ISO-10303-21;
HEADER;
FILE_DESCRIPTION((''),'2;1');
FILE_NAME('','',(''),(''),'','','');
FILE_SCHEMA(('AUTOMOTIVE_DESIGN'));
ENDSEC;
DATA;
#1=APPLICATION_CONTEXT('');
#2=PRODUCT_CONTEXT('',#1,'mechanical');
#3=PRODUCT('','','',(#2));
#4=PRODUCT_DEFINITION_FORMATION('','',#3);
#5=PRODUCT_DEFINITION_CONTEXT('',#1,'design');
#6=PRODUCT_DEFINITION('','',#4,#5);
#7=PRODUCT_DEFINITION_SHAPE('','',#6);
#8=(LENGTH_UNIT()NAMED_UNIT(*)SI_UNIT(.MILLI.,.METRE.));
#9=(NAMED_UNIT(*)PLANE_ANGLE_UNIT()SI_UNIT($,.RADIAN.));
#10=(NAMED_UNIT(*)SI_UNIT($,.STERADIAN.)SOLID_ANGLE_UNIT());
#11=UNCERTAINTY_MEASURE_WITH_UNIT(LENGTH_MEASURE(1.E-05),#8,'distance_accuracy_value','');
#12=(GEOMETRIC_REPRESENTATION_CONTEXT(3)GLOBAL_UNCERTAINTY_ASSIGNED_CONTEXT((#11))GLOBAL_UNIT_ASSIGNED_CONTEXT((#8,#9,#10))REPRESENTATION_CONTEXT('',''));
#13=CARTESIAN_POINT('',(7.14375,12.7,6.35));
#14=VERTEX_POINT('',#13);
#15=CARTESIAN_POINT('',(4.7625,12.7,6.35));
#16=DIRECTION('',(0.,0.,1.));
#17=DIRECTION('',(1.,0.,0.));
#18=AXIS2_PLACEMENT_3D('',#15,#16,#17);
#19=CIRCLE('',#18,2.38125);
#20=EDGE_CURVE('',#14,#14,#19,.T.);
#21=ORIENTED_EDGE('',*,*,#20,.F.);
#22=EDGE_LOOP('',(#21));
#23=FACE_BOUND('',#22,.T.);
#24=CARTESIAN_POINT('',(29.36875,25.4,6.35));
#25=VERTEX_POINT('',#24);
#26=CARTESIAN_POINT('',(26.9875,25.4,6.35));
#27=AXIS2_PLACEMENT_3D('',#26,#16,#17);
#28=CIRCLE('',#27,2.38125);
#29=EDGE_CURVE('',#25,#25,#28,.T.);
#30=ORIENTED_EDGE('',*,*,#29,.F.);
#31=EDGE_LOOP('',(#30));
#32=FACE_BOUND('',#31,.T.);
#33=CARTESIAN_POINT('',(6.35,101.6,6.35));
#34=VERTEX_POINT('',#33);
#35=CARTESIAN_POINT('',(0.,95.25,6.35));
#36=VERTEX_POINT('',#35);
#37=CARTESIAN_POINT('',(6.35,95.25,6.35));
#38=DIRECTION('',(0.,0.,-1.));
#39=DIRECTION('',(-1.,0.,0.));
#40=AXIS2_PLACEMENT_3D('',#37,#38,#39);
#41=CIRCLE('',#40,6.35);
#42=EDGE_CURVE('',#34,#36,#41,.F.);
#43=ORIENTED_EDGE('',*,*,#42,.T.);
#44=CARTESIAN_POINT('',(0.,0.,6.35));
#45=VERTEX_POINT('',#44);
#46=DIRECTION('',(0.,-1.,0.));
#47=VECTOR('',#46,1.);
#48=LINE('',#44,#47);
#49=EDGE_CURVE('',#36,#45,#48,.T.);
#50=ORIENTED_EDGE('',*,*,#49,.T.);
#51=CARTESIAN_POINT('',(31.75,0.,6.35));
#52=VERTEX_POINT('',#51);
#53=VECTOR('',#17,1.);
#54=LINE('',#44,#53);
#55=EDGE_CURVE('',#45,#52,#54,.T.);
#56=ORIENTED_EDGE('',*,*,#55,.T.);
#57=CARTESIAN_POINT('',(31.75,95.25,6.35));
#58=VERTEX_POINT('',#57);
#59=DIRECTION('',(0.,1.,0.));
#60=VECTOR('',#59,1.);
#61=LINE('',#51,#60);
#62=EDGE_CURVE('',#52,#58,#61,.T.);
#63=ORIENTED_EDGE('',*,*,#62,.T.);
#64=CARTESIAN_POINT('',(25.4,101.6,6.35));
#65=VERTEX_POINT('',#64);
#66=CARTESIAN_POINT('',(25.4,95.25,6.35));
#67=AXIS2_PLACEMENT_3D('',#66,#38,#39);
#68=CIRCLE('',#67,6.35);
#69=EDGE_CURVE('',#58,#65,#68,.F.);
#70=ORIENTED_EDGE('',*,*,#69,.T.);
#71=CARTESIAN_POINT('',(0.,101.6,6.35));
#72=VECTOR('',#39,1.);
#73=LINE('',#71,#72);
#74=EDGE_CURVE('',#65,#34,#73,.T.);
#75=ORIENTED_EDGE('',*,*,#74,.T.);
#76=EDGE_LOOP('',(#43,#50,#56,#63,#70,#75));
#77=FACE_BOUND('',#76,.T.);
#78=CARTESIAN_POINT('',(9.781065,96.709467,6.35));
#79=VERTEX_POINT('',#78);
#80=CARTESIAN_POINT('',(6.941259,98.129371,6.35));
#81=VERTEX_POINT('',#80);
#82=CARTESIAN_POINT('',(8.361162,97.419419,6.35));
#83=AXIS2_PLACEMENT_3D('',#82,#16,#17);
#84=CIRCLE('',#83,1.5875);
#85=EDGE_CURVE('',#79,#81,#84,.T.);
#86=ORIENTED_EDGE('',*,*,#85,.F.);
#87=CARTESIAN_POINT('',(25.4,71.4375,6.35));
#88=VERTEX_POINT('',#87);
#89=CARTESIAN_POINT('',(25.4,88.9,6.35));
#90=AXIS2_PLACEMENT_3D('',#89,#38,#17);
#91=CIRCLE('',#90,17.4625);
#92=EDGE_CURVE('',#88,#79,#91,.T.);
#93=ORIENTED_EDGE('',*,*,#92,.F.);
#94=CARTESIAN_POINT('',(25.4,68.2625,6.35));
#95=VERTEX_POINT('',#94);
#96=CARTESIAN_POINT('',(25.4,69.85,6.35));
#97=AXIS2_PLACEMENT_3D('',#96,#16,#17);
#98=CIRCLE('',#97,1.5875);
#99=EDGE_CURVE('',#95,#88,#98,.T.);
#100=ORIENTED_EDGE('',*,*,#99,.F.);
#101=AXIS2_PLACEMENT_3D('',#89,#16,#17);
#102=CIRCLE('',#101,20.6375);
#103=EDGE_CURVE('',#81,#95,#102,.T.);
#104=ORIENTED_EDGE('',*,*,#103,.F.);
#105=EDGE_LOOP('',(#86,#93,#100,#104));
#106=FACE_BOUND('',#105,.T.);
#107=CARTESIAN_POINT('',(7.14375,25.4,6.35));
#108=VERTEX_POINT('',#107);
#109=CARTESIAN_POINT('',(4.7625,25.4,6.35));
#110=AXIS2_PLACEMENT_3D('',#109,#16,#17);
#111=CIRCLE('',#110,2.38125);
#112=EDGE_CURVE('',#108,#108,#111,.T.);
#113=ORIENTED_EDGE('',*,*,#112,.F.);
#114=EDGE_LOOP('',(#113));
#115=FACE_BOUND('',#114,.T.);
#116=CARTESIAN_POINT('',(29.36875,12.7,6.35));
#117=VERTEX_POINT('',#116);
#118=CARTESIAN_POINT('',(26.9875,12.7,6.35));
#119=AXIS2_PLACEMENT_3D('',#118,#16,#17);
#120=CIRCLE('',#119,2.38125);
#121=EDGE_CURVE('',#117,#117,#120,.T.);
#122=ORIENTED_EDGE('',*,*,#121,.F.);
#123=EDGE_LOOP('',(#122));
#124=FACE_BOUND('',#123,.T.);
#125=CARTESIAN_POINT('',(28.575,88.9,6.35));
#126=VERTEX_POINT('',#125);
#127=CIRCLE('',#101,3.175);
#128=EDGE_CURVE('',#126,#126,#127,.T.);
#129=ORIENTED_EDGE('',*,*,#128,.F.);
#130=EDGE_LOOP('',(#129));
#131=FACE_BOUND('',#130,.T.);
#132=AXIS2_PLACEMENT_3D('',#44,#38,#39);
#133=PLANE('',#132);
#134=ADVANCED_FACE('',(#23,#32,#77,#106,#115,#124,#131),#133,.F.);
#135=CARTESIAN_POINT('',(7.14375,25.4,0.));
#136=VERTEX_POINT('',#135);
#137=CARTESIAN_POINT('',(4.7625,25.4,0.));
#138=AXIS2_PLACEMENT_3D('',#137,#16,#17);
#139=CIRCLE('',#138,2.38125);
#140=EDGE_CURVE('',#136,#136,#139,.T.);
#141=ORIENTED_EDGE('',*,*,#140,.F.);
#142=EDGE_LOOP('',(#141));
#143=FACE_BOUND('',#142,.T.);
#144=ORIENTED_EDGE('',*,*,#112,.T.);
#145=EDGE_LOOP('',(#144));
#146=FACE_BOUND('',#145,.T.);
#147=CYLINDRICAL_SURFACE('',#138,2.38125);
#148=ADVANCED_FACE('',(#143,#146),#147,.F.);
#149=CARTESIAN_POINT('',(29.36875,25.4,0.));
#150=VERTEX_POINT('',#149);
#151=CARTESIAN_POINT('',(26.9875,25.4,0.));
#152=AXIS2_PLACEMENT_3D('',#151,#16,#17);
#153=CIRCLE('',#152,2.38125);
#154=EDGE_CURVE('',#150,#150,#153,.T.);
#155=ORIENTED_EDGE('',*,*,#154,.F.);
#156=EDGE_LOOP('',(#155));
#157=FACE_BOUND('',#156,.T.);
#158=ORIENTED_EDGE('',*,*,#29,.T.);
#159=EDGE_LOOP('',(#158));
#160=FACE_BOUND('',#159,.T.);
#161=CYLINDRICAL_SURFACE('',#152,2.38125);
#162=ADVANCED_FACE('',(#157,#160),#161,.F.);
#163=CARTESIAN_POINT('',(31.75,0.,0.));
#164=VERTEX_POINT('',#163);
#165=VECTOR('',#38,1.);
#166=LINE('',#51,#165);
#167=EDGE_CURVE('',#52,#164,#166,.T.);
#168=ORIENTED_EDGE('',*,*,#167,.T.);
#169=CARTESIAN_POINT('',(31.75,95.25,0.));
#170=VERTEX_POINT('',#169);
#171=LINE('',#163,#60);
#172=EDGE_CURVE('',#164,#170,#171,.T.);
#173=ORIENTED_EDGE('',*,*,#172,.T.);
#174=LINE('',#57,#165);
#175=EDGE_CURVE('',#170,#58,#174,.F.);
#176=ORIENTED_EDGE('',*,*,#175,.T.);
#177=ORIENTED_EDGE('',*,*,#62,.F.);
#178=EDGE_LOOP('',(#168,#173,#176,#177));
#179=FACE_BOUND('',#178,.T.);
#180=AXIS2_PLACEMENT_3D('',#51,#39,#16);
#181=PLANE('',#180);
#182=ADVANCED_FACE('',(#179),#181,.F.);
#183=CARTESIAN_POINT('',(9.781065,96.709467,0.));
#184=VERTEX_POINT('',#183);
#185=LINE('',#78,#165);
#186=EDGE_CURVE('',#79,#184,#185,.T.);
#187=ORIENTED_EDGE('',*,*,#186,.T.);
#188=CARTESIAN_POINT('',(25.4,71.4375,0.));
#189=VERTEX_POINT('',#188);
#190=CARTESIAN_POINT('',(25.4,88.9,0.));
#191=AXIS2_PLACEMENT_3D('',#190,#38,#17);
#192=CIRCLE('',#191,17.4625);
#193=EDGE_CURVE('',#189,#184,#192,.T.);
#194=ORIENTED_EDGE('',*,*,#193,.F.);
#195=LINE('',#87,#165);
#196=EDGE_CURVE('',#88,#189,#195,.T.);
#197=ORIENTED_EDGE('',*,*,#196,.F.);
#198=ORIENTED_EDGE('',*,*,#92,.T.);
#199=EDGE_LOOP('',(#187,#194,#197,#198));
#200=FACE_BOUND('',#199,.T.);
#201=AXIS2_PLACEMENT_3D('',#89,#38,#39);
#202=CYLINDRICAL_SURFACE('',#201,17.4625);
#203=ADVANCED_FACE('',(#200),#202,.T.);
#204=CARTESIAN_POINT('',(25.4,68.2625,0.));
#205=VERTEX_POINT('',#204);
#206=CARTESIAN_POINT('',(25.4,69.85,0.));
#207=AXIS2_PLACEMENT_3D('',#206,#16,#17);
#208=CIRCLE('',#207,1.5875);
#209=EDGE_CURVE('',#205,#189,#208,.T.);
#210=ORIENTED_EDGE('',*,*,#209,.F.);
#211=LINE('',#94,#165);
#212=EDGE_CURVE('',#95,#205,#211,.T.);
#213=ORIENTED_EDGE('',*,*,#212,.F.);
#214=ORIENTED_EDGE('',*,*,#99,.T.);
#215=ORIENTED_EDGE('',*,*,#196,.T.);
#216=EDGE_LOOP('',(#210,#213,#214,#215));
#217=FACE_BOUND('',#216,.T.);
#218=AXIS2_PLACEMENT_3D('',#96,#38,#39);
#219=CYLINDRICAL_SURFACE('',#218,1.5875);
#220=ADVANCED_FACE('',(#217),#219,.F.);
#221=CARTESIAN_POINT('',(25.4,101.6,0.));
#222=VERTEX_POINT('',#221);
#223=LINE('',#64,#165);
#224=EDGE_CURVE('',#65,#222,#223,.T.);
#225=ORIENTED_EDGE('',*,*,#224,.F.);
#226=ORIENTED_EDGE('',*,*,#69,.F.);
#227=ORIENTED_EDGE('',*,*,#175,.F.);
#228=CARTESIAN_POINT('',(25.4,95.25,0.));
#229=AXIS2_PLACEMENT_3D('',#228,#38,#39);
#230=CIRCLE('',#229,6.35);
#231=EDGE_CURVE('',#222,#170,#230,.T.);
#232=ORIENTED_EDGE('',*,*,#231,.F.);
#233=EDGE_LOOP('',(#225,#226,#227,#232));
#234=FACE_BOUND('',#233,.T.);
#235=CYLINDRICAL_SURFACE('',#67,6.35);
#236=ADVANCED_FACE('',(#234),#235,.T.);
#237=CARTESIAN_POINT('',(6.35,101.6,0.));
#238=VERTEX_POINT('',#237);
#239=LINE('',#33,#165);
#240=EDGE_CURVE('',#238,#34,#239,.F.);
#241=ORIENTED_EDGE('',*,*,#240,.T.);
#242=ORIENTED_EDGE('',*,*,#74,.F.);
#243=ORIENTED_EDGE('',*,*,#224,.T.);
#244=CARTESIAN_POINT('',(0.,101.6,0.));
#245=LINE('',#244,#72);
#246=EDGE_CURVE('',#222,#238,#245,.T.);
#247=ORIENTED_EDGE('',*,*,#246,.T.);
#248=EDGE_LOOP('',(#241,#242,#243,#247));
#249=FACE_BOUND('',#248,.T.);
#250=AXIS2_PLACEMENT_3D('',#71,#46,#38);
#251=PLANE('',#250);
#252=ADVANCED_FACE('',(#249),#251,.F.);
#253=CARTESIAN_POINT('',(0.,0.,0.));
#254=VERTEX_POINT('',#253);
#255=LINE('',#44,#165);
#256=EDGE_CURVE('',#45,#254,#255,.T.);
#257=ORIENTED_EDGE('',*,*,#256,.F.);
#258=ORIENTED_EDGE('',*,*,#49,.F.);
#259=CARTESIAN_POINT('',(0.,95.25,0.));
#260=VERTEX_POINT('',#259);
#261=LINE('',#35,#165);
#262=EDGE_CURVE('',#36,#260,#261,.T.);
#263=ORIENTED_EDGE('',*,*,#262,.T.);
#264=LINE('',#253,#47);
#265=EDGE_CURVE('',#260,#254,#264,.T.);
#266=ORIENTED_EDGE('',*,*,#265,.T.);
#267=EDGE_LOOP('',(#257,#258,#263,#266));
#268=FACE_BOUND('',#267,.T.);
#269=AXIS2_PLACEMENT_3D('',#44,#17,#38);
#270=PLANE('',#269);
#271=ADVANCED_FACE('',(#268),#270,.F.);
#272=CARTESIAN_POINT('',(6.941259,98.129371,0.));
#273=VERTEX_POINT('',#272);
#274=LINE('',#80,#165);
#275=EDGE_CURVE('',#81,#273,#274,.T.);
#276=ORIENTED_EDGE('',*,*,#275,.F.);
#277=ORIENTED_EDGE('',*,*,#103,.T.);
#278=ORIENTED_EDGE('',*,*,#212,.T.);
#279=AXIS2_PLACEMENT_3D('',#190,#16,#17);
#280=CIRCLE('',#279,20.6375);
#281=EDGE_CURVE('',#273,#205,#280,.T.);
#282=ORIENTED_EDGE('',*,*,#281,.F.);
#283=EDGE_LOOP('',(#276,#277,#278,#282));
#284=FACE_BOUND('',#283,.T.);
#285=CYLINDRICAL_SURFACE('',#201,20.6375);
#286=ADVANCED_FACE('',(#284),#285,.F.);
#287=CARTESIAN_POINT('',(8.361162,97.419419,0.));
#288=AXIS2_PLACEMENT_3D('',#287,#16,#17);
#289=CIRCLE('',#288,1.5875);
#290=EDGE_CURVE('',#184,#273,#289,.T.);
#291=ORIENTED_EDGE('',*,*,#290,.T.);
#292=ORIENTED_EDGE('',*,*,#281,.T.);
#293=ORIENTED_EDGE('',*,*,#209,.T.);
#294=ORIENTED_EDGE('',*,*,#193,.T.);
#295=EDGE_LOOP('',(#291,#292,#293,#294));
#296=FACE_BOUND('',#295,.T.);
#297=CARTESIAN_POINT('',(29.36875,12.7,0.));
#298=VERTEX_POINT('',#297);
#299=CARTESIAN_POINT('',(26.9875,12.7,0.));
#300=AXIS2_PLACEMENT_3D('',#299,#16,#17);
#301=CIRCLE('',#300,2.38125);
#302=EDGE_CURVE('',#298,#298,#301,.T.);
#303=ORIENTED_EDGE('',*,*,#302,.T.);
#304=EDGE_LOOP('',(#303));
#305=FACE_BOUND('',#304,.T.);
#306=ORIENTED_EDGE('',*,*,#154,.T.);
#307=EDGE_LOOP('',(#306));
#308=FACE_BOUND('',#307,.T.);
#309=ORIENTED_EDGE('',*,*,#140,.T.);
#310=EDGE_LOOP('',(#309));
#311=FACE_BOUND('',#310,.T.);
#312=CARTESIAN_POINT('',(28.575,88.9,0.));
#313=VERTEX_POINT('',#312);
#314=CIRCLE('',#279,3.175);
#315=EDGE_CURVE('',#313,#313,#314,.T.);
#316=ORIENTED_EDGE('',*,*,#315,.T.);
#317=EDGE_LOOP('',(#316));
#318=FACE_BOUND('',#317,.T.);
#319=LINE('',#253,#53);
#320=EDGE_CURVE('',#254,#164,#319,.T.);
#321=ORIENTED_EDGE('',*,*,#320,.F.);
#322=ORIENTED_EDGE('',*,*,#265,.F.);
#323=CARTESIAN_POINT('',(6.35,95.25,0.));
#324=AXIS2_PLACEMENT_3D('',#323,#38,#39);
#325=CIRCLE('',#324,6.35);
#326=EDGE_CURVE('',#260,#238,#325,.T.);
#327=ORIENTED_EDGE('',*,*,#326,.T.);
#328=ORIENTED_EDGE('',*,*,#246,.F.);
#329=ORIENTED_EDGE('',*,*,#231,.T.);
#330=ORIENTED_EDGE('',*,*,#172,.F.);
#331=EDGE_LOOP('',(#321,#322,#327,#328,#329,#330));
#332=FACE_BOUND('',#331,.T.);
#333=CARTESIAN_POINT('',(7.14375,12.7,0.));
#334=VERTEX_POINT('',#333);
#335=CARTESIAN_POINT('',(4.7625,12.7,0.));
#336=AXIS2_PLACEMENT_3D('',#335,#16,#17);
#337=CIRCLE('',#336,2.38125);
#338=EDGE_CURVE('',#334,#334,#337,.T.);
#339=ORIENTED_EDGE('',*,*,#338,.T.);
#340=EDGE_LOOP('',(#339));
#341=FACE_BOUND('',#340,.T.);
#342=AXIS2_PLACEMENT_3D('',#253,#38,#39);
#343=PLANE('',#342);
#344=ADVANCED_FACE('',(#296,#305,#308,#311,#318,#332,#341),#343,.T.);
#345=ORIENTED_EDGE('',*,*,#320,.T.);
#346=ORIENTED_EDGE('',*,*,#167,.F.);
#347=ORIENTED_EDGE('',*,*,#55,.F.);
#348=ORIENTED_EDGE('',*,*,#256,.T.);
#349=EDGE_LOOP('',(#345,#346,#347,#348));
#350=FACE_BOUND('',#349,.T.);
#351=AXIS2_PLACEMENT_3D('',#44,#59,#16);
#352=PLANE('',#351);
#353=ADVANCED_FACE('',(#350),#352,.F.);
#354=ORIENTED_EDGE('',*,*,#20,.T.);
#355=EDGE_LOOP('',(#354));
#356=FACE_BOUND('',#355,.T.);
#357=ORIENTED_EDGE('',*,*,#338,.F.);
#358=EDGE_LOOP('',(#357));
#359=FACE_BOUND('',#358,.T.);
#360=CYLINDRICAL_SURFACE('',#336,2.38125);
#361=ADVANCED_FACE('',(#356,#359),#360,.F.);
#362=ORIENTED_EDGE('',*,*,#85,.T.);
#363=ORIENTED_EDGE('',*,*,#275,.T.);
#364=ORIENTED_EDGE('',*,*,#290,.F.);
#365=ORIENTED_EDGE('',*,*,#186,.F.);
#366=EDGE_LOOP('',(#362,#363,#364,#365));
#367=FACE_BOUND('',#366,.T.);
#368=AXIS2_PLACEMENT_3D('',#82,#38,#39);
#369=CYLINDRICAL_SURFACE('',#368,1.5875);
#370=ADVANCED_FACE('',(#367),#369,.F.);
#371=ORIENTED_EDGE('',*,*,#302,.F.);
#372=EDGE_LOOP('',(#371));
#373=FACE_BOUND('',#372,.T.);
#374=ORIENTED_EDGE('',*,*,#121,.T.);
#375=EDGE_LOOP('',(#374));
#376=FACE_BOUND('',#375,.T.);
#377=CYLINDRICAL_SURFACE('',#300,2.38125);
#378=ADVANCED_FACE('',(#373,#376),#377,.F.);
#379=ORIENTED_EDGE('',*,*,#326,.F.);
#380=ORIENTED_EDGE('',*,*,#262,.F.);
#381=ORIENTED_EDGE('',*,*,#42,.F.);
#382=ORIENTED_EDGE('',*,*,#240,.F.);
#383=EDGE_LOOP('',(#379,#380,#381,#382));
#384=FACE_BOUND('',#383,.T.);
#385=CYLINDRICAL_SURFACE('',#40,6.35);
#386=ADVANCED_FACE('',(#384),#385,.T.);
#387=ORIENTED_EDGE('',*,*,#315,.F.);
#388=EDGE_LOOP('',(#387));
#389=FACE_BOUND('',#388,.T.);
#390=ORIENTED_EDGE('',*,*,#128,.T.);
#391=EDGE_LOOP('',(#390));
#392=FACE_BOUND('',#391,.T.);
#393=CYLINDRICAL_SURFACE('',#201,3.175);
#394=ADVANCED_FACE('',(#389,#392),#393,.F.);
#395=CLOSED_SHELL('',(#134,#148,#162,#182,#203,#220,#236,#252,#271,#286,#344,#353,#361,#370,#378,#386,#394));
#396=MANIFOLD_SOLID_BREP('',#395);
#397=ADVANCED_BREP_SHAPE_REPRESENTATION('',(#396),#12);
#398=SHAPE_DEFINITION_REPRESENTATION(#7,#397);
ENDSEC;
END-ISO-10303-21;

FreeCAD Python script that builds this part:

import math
import FreeCAD as App
import Part
import Sketcher

V = App.Vector
Q = App.Units.Quantity


def edges_at(feature, points):
    """Names of the edges that pass closest to the given points."""
    edges = feature.Shape.Edges
    near = lambda p: min(range(len(edges)), key=lambda i: edges[i].distToShape(Part.Vertex(*p))[0])
    return sorted({f"Edge{near(p) + 1}" for p in points})

doc = App.newDocument("Part")
body = doc.addObject("PartDesign::Body", "Body")

sketch1 = body.newObject("Sketcher::SketchObject", "Sketch")
sketch1.AttachmentSupport = (doc.getObject("XY_Plane"), [""])
sketch1.MapMode = "FlatFace"
sketch1.addGeometry([
    Part.LineSegment(V(0, 101.6, 0), V(0, 0, 0)),
    Part.LineSegment(V(0, 0, 0), V(31.8, 0, 0)),
    Part.LineSegment(V(31.8, 0, 0), V(31.8, 101.6, 0)),
    Part.LineSegment(V(31.8, 101.6, 0), V(0, 101.6, 0)),
    Part.ArcOfCircle(Part.Circle(V(25.4, 88.9, 0), V(0, 0, 1), 20.6), math.radians(153), math.radians(270)),
    Part.ArcOfCircle(Part.Circle(V(8.4, 97.4, 0), V(0, 0, 1), 1.6), math.radians(-27), math.radians(153)),
    Part.ArcOfCircle(Part.Circle(V(25.4, 88.9, 0), V(0, 0, 1), 17.5), math.radians(153), math.radians(270)),
    Part.ArcOfCircle(Part.Circle(V(25.4, 69.8, 0), V(0, 0, 1), 1.6), math.radians(-90), math.radians(90)),
    Part.Circle(V(25.4, 88.9, 0), V(0, 0, 1), 3.2),
], False)
sketch1.addConstraint([
    Sketcher.Constraint("Coincident", 0, 2, 1, 1),
    Sketcher.Constraint("Coincident", 1, 2, 2, 1),
    Sketcher.Constraint("Coincident", 2, 2, 3, 1),
    Sketcher.Constraint("Coincident", 3, 2, 0, 1),
    Sketcher.Constraint("Tangent", 4, 1, 5, 2),
    Sketcher.Constraint("Tangent", 5, 1, 6, 1),
    Sketcher.Constraint("Tangent", 6, 2, 7, 2),
    Sketcher.Constraint("Tangent", 7, 1, 4, 2),
    Sketcher.Constraint("Vertical", 0),
    Sketcher.Constraint("Horizontal", 1),
    Sketcher.Constraint("Vertical", 2),
    Sketcher.Constraint("Horizontal", 3),
    Sketcher.Constraint("Coincident", 0, 2, -1, 1),
    Sketcher.Constraint("Coincident", 6, 3, 4, 3),
    Sketcher.Constraint("Coincident", 8, 3, 4, 3),
    Sketcher.Constraint("Vertical", 6, 3, 7, 3),
    Sketcher.Constraint("Diameter", 8, Q("0.25 in")),
    Sketcher.Constraint("DistanceY", 0, 2, 0, 1, Q("4 in")),
    Sketcher.Constraint("DistanceX", -1, 1, 4, 3, Q("1 in")),
    Sketcher.Constraint("Radius", 4, Q("0.8125 in")),
    Sketcher.Constraint("Radius", 5, Q("0.0625 in")),
    Sketcher.Constraint("DistanceX", 1, 1, 1, 2, Q("1.25 in")),
    Sketcher.Constraint("DistanceY", -1, 1, 4, 3, Q("3.5 in")),
    Sketcher.Constraint("DistanceY", -1, 1, 5, 3, 97.419419),
])
pad1 = body.newObject("PartDesign::Pad", "Pad")
pad1.Profile = sketch1
pad1.Length = Q("0.25 in")

sketch2 = body.newObject("Sketcher::SketchObject", "Sketch001")
sketch2.AttachmentSupport = (doc.getObject("XY_Plane"), [""])
sketch2.MapMode = "FlatFace"
sketch2.AttachmentOffset = App.Placement(V(0, 0, 0.25 * 25.4), App.Rotation())
sketch2.addGeometry([
    Part.Circle(V(4.8, 25.4, 0), V(0, 0, 1), 2.4),
    Part.Circle(V(27, 25.4, 0), V(0, 0, 1), 2.4),
    Part.Circle(V(4.8, 12.7, 0), V(0, 0, 1), 2.4),
    Part.Circle(V(27, 12.7, 0), V(0, 0, 1), 2.4),
], False)
sketch2.addConstraint([
    Sketcher.Constraint("Equal", 0, 1),
    Sketcher.Constraint("Equal", 1, 2),
    Sketcher.Constraint("Equal", 2, 3),
    Sketcher.Constraint("Horizontal", 0, 3, 1, 3),
    Sketcher.Constraint("Horizontal", 2, 3, 3, 3),
    Sketcher.Constraint("Vertical", 0, 3, 2, 3),
    Sketcher.Constraint("Vertical", 1, 3, 3, 3),
    Sketcher.Constraint("Diameter", 0, Q("0.1875 in")),
    Sketcher.Constraint("DistanceY", -1, 1, 0, 3, Q("1 in")),
    Sketcher.Constraint("DistanceY", -1, 1, 2, 3, Q("0.5 in")),
    Sketcher.Constraint("DistanceX", -1, 1, 0, 3, Q("0.1875 in")),
    Sketcher.Constraint("DistanceX", -1, 1, 1, 3, Q("1.0625 in")),
])
pocket1 = body.newObject("PartDesign::Pocket", "Pocket")
pocket1.Profile = sketch2
pocket1.Type = "ThroughAll"
doc.recompute()

fillet = body.newObject("PartDesign::Fillet", "Fillet")
fillet.Base = (pocket1, edges_at(pocket1, [(0, 101.6, 3.175), (31.75, 101.6, 3.175)]))
fillet.Radius = Q("0.25 in")

doc.recompute()
